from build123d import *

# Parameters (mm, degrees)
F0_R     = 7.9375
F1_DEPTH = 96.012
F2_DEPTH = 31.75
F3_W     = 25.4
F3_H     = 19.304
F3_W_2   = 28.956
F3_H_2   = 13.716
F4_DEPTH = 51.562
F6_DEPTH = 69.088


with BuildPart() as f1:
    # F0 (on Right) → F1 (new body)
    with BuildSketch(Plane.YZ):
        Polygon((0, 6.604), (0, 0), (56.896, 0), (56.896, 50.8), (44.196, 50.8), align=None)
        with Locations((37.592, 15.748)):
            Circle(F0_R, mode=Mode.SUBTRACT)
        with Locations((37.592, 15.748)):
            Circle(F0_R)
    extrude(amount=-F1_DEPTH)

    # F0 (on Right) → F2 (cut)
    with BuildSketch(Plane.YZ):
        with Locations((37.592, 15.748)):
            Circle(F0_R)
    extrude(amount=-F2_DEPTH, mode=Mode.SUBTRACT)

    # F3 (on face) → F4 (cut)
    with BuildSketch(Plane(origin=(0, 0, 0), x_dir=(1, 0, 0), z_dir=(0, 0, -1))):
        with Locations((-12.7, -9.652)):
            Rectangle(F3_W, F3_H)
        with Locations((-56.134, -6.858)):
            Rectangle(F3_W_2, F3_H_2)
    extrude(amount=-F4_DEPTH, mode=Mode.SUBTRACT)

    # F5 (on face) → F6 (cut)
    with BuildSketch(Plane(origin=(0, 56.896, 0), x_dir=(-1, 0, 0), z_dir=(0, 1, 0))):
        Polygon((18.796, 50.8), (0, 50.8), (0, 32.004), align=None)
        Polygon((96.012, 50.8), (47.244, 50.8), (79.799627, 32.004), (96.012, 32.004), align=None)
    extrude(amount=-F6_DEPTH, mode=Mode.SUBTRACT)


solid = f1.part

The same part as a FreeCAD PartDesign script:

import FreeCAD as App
import Part
import Sketcher
from FreeCAD import Vector
Q = App.Units.Quantity

doc = App.newDocument("Part")
body = doc.addObject("PartDesign::Body", "Body")

sketch1 = body.newObject("Sketcher::SketchObject", "Sketch")
sketch1.AttachmentSupport = (doc.getObject("YZ_Plane"), [""])
sketch1.MapMode = "FlatFace"
sketch1.addGeometry(Part.LineSegment(Vector(0, 7, 0), Vector(0, 0, 0)), False)
sketch1.addGeometry(Part.LineSegment(Vector(0, 0, 0), Vector(57, 0, 0)), False)
sketch1.addGeometry(Part.LineSegment(Vector(57, 0, 0), Vector(57, 51, 0)), False)
sketch1.addGeometry(Part.LineSegment(Vector(57, 51, 0), Vector(44, 51, 0)), False)
sketch1.addGeometry(Part.LineSegment(Vector(44, 51, 0), Vector(0, 7, 0)), False)
sketch1.addConstraint(Sketcher.Constraint("Coincident", 0, 2, 1, 1))
sketch1.addConstraint(Sketcher.Constraint("Coincident", 1, 2, 2, 1))
sketch1.addConstraint(Sketcher.Constraint("Coincident", 2, 2, 3, 1))
sketch1.addConstraint(Sketcher.Constraint("Coincident", 3, 2, 4, 1))
sketch1.addConstraint(Sketcher.Constraint("Coincident", 4, 2, 0, 1))
sketch1.addConstraint(Sketcher.Constraint("Vertical", 0))
sketch1.addConstraint(Sketcher.Constraint("Horizontal", 1))
sketch1.addConstraint(Sketcher.Constraint("Vertical", 2))
sketch1.addConstraint(Sketcher.Constraint("Horizontal", 3))
sketch1.addConstraint(Sketcher.Constraint("Coincident", 0, 2, -1, 1))
sketch1.addConstraint(Sketcher.Constraint("DistanceY", 2, 1, 2, 2, Q("2 in")))
sketch1.addConstraint(Sketcher.Constraint("DistanceX", 3, 2, 3, 1, Q("0.5 in")))
sketch1.addConstraint(Sketcher.Constraint("Angle", 4, Q("-135 deg")))
sketch1.addConstraint(Sketcher.Constraint("DistanceX", 1, 1, 1, 2, Q("2.24 in")))
pad1 = body.newObject("PartDesign::Pad", "Pad")
pad1.Profile = sketch1
pad1.Length = Q("3.78 in")
pad1.Reversed = True

sketch2 = body.newObject("Sketcher::SketchObject", "Sketch001")
sketch2.AttachmentSupport = (doc.getObject("YZ_Plane"), [""])
sketch2.MapMode = "FlatFace"
sketch2.addGeometry(Part.Circle(Vector(38, 16, 0), Vector(0, 0, 1), 8), False)
sketch2.addConstraint(Sketcher.Constraint("Diameter", 0, Q("0.625 in")))
sketch2.addConstraint(Sketcher.Constraint("DistanceX", -1, 1, 0, 3, Q("1.48 in")))
sketch2.addConstraint(Sketcher.Constraint("DistanceY", -1, 1, 0, 3, Q("0.62 in")))
pocket1 = body.newObject("PartDesign::Pocket", "Pocket")
pocket1.Profile = sketch2
pocket1.Length = Q("1.25 in")

sketch3 = body.newObject("Sketcher::SketchObject", "Sketch002")
sketch3.AttachmentSupport = (doc.getObject("XY_Plane"), [""])
sketch3.MapMode = "FlatFace"
sketch3.addGeometry(Part.LineSegment(Vector(-25, 0, 0), Vector(-25, 19, 0)), False)
sketch3.addGeometry(Part.LineSegment(Vector(-25, 19, 0), Vector(0, 19, 0)), False)
sketch3.addGeometry(Part.LineSegment(Vector(0, 19, 0), Vector(0, 0, 0)), False)
sketch3.addGeometry(Part.LineSegment(Vector(0, 0, 0), Vector(-25, 0, 0)), False)
sketch3.addGeometry(Part.LineSegment(Vector(-71, 0, 0), Vector(-71, 14, 0)), False)
sketch3.addGeometry(Part.LineSegment(Vector(-71, 14, 0), Vector(-42, 14, 0)), False)
sketch3.addGeometry(Part.LineSegment(Vector(-42, 14, 0), Vector(-42, 0, 0)), False)
sketch3.addGeometry(Part.LineSegment(Vector(-42, 0, 0), Vector(-71, 0, 0)), False)
sketch3.addConstraint(Sketcher.Constraint("Coincident", 0, 2, 1, 1))
sketch3.addConstraint(Sketcher.Constraint("Coincident", 1, 2, 2, 1))
sketch3.addConstraint(Sketcher.Constraint("Coincident", 2, 2, 3, 1))
sketch3.addConstraint(Sketcher.Constraint("Coincident", 3, 2, 0, 1))
sketch3.addConstraint(Sketcher.Constraint("Coincident", 4, 2, 5, 1))
sketch3.addConstraint(Sketcher.Constraint("Coincident", 5, 2, 6, 1))
sketch3.addConstraint(Sketcher.Constraint("Coincident", 6, 2, 7, 1))
sketch3.addConstraint(Sketcher.Constraint("Coincident", 7, 2, 4, 1))
sketch3.addConstraint(Sketcher.Constraint("Vertical", 0))
sketch3.addConstraint(Sketcher.Constraint("Horizontal", 1))
sketch3.addConstraint(Sketcher.Constraint("Vertical", 2))
sketch3.addConstraint(Sketcher.Constraint("Horizontal", 3))
sketch3.addConstraint(Sketcher.Constraint("Vertical", 4))
sketch3.addConstraint(Sketcher.Constraint("Horizontal", 5))
sketch3.addConstraint(Sketcher.Constraint("Vertical", 6))
sketch3.addConstraint(Sketcher.Constraint("Horizontal", 7))
sketch3.addConstraint(Sketcher.Constraint("Coincident", 2, 2, -1, 1))
sketch3.addConstraint(Sketcher.Constraint("PointOnObject", 6, 2, -1))
sketch3.addConstraint(Sketcher.Constraint("DistanceX", 1, 1, 1, 2, Q("1 in")))
sketch3.addConstraint(Sketcher.Constraint("DistanceX", 5, 1, 5, 2, Q("1.14 in")))
sketch3.addConstraint(Sketcher.Constraint("DistanceY", 0, 1, 0, 2, Q("0.76 in")))
sketch3.addConstraint(Sketcher.Constraint("DistanceY", 4, 1, 4, 2, Q("0.54 in")))
sketch3.addConstraint(Sketcher.Constraint("DistanceX", 4, 2, -1, 1, Q("2.78 in")))
pocket2 = body.newObject("PartDesign::Pocket", "Pocket001")
pocket2.Profile = sketch3
pocket2.Length = Q("2.03 in")
pocket2.Reversed = True

sketch4 = body.newObject("Sketcher::SketchObject", "Sketch003")
sketch4.AttachmentSupport = (doc.getObject("XZ_Plane"), [""])
sketch4.MapMode = "FlatFace"
sketch4.AttachmentOffset = App.Placement(Vector(0, 0, -2.24 * 25.4), App.Rotation())
sketch4.addGeometry(Part.LineSegment(Vector(-19, 51, 0), Vector(0, 51, 0)), False)
sketch4.addGeometry(Part.LineSegment(Vector(0, 51, 0), Vector(0, 32, 0)), False)
sketch4.addGeometry(Part.LineSegment(Vector(0, 32, 0), Vector(-19, 51, 0)), False)
sketch4.addGeometry(Part.LineSegment(Vector(-96, 51, 0), Vector(-47, 51, 0)), False)
sketch4.addGeometry(Part.LineSegment(Vector(-47, 51, 0), Vector(-80, 32, 0)), False)
sketch4.addGeometry(Part.LineSegment(Vector(-80, 32, 0), Vector(-96, 32, 0)), False)
sketch4.addGeometry(Part.LineSegment(Vector(-96, 32, 0), Vector(-96, 51, 0)), False)
sketch4.addConstraint(Sketcher.Constraint("Coincident", 0, 2, 1, 1))
sketch4.addConstraint(Sketcher.Constraint("Coincident", 1, 2, 2, 1))
sketch4.addConstraint(Sketcher.Constraint("Coincident", 2, 2, 0, 1))
sketch4.addConstraint(Sketcher.Constraint("Coincident", 3, 2, 4, 1))
sketch4.addConstraint(Sketcher.Constraint("Coincident", 4, 2, 5, 1))
sketch4.addConstraint(Sketcher.Constraint("Coincident", 5, 2, 6, 1))
sketch4.addConstraint(Sketcher.Constraint("Coincident", 6, 2, 3, 1))
sketch4.addConstraint(Sketcher.Constraint("Horizontal", 0))
sketch4.addConstraint(Sketcher.Constraint("Vertical", 1))
sketch4.addConstraint(Sketcher.Constraint("Horizontal", 3))
sketch4.addConstraint(Sketcher.Constraint("Horizontal", 5))
sketch4.addConstraint(Sketcher.Constraint("Vertical", 6))
sketch4.addConstraint(Sketcher.Constraint("PointOnObject", 0, 2, -2))
sketch4.addConstraint(Sketcher.Constraint("Horizontal", 2, 2, 3, 2))
sketch4.addConstraint(Sketcher.Constraint("Horizontal", 1, 2, 4, 2))
sketch4.addConstraint(Sketcher.Constraint("Equal", 0, 1))
sketch4.addConstraint(Sketcher.Constraint("DistanceY", -1, 1, 0, 2, Q("2 in")))
sketch4.addConstraint(Sketcher.Constraint("Angle", 4, Q("-150 deg")))
sketch4.addConstraint(Sketcher.Constraint("DistanceX", 0, 1, 0, 2, Q("0.74 in")))
sketch4.addConstraint(Sketcher.Constraint("DistanceX", 3, 1, 3, 2, Q("1.92 in")))
sketch4.addConstraint(Sketcher.Constraint("DistanceX", 3, 2, -1, 1, Q("1.86 in")))
pocket3 = body.newObject("PartDesign::Pocket", "Pocket002")
pocket3.Profile = sketch4
pocket3.Length = Q("2.72 in")
pocket3.Reversed = True

doc.recompute()
